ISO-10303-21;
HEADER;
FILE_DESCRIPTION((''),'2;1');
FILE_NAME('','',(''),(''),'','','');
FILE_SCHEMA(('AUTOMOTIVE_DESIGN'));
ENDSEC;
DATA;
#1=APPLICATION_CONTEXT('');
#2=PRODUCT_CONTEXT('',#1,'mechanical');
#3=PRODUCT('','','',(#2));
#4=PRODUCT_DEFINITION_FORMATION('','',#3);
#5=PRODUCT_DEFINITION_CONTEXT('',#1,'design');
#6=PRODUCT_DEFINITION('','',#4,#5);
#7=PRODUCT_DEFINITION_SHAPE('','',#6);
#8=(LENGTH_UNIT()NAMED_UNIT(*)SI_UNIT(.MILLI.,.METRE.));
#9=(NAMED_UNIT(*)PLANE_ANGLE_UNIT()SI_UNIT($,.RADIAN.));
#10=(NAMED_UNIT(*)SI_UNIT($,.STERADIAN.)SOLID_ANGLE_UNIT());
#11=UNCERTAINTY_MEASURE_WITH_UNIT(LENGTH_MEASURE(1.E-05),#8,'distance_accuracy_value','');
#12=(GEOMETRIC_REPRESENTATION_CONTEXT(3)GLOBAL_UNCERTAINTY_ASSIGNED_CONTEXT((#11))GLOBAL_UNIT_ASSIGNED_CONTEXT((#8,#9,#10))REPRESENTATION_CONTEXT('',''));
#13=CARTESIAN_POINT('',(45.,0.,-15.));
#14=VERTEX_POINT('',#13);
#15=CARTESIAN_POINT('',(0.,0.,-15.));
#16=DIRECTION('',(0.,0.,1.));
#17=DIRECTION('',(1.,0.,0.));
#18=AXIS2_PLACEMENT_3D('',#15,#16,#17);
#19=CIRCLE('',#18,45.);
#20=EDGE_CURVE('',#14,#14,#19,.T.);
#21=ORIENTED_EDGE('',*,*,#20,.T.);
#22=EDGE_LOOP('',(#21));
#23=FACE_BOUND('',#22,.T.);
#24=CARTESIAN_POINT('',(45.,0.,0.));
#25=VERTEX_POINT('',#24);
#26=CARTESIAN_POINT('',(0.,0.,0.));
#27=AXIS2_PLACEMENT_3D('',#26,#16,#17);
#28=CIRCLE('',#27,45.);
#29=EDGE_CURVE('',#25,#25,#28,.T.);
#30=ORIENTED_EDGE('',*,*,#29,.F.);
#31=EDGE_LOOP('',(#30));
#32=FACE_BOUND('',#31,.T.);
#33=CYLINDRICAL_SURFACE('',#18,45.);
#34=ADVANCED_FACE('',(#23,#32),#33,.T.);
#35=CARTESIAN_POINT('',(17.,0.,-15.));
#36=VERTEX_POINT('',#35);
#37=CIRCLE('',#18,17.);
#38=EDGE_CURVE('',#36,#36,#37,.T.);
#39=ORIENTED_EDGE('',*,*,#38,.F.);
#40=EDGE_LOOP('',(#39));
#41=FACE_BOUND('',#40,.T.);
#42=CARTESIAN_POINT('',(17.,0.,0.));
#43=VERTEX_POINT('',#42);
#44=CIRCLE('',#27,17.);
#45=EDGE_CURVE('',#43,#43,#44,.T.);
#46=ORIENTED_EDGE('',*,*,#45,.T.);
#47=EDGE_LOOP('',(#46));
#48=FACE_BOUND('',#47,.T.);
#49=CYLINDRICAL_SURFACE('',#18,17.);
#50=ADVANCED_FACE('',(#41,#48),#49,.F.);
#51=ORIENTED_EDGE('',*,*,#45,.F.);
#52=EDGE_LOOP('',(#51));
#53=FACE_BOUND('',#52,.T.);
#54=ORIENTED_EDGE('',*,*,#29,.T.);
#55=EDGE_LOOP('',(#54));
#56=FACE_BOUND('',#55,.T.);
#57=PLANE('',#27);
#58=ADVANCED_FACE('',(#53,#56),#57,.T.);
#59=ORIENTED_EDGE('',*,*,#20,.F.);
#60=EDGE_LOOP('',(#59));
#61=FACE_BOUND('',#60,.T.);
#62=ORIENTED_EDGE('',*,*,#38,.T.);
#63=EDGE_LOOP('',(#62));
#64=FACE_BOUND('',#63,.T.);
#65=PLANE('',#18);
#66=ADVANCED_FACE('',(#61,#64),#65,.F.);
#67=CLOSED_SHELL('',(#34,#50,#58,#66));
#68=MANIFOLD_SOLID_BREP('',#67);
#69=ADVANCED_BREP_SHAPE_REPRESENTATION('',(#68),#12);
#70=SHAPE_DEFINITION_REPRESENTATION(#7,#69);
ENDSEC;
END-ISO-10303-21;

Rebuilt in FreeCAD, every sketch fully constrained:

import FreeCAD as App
import Part
import Sketcher

doc = App.newDocument("Part")
body = doc.addObject("PartDesign::Body", "Body")

sketch1 = body.newObject("Sketcher::SketchObject", "Sketch")
sketch1.AttachmentSupport = (doc.getObject("XY_Plane"), [""])
sketch1.MapMode = "FlatFace"
sketch1.addGeometry(Part.Circle(App.Vector(0, 0, 0), App.Vector(0, 0, 1), 45), False)
sketch1.addGeometry(Part.Circle(App.Vector(0, 0, 0), App.Vector(0, 0, 1), 17), False)
sketch1.addConstraint(Sketcher.Constraint("Coincident", 0, 3, -1, 1))
sketch1.addConstraint(Sketcher.Constraint("Coincident", 1, 3, -1, 1))
sketch1.addConstraint(Sketcher.Constraint("Diameter", 0, 90.0))
sketch1.addConstraint(Sketcher.Constraint("Diameter", 1, 34.0))
pad1 = body.newObject("PartDesign::Pad", "Pad")
pad1.Profile = sketch1
pad1.Length = 15
pad1.Reversed = True

doc.recompute()
